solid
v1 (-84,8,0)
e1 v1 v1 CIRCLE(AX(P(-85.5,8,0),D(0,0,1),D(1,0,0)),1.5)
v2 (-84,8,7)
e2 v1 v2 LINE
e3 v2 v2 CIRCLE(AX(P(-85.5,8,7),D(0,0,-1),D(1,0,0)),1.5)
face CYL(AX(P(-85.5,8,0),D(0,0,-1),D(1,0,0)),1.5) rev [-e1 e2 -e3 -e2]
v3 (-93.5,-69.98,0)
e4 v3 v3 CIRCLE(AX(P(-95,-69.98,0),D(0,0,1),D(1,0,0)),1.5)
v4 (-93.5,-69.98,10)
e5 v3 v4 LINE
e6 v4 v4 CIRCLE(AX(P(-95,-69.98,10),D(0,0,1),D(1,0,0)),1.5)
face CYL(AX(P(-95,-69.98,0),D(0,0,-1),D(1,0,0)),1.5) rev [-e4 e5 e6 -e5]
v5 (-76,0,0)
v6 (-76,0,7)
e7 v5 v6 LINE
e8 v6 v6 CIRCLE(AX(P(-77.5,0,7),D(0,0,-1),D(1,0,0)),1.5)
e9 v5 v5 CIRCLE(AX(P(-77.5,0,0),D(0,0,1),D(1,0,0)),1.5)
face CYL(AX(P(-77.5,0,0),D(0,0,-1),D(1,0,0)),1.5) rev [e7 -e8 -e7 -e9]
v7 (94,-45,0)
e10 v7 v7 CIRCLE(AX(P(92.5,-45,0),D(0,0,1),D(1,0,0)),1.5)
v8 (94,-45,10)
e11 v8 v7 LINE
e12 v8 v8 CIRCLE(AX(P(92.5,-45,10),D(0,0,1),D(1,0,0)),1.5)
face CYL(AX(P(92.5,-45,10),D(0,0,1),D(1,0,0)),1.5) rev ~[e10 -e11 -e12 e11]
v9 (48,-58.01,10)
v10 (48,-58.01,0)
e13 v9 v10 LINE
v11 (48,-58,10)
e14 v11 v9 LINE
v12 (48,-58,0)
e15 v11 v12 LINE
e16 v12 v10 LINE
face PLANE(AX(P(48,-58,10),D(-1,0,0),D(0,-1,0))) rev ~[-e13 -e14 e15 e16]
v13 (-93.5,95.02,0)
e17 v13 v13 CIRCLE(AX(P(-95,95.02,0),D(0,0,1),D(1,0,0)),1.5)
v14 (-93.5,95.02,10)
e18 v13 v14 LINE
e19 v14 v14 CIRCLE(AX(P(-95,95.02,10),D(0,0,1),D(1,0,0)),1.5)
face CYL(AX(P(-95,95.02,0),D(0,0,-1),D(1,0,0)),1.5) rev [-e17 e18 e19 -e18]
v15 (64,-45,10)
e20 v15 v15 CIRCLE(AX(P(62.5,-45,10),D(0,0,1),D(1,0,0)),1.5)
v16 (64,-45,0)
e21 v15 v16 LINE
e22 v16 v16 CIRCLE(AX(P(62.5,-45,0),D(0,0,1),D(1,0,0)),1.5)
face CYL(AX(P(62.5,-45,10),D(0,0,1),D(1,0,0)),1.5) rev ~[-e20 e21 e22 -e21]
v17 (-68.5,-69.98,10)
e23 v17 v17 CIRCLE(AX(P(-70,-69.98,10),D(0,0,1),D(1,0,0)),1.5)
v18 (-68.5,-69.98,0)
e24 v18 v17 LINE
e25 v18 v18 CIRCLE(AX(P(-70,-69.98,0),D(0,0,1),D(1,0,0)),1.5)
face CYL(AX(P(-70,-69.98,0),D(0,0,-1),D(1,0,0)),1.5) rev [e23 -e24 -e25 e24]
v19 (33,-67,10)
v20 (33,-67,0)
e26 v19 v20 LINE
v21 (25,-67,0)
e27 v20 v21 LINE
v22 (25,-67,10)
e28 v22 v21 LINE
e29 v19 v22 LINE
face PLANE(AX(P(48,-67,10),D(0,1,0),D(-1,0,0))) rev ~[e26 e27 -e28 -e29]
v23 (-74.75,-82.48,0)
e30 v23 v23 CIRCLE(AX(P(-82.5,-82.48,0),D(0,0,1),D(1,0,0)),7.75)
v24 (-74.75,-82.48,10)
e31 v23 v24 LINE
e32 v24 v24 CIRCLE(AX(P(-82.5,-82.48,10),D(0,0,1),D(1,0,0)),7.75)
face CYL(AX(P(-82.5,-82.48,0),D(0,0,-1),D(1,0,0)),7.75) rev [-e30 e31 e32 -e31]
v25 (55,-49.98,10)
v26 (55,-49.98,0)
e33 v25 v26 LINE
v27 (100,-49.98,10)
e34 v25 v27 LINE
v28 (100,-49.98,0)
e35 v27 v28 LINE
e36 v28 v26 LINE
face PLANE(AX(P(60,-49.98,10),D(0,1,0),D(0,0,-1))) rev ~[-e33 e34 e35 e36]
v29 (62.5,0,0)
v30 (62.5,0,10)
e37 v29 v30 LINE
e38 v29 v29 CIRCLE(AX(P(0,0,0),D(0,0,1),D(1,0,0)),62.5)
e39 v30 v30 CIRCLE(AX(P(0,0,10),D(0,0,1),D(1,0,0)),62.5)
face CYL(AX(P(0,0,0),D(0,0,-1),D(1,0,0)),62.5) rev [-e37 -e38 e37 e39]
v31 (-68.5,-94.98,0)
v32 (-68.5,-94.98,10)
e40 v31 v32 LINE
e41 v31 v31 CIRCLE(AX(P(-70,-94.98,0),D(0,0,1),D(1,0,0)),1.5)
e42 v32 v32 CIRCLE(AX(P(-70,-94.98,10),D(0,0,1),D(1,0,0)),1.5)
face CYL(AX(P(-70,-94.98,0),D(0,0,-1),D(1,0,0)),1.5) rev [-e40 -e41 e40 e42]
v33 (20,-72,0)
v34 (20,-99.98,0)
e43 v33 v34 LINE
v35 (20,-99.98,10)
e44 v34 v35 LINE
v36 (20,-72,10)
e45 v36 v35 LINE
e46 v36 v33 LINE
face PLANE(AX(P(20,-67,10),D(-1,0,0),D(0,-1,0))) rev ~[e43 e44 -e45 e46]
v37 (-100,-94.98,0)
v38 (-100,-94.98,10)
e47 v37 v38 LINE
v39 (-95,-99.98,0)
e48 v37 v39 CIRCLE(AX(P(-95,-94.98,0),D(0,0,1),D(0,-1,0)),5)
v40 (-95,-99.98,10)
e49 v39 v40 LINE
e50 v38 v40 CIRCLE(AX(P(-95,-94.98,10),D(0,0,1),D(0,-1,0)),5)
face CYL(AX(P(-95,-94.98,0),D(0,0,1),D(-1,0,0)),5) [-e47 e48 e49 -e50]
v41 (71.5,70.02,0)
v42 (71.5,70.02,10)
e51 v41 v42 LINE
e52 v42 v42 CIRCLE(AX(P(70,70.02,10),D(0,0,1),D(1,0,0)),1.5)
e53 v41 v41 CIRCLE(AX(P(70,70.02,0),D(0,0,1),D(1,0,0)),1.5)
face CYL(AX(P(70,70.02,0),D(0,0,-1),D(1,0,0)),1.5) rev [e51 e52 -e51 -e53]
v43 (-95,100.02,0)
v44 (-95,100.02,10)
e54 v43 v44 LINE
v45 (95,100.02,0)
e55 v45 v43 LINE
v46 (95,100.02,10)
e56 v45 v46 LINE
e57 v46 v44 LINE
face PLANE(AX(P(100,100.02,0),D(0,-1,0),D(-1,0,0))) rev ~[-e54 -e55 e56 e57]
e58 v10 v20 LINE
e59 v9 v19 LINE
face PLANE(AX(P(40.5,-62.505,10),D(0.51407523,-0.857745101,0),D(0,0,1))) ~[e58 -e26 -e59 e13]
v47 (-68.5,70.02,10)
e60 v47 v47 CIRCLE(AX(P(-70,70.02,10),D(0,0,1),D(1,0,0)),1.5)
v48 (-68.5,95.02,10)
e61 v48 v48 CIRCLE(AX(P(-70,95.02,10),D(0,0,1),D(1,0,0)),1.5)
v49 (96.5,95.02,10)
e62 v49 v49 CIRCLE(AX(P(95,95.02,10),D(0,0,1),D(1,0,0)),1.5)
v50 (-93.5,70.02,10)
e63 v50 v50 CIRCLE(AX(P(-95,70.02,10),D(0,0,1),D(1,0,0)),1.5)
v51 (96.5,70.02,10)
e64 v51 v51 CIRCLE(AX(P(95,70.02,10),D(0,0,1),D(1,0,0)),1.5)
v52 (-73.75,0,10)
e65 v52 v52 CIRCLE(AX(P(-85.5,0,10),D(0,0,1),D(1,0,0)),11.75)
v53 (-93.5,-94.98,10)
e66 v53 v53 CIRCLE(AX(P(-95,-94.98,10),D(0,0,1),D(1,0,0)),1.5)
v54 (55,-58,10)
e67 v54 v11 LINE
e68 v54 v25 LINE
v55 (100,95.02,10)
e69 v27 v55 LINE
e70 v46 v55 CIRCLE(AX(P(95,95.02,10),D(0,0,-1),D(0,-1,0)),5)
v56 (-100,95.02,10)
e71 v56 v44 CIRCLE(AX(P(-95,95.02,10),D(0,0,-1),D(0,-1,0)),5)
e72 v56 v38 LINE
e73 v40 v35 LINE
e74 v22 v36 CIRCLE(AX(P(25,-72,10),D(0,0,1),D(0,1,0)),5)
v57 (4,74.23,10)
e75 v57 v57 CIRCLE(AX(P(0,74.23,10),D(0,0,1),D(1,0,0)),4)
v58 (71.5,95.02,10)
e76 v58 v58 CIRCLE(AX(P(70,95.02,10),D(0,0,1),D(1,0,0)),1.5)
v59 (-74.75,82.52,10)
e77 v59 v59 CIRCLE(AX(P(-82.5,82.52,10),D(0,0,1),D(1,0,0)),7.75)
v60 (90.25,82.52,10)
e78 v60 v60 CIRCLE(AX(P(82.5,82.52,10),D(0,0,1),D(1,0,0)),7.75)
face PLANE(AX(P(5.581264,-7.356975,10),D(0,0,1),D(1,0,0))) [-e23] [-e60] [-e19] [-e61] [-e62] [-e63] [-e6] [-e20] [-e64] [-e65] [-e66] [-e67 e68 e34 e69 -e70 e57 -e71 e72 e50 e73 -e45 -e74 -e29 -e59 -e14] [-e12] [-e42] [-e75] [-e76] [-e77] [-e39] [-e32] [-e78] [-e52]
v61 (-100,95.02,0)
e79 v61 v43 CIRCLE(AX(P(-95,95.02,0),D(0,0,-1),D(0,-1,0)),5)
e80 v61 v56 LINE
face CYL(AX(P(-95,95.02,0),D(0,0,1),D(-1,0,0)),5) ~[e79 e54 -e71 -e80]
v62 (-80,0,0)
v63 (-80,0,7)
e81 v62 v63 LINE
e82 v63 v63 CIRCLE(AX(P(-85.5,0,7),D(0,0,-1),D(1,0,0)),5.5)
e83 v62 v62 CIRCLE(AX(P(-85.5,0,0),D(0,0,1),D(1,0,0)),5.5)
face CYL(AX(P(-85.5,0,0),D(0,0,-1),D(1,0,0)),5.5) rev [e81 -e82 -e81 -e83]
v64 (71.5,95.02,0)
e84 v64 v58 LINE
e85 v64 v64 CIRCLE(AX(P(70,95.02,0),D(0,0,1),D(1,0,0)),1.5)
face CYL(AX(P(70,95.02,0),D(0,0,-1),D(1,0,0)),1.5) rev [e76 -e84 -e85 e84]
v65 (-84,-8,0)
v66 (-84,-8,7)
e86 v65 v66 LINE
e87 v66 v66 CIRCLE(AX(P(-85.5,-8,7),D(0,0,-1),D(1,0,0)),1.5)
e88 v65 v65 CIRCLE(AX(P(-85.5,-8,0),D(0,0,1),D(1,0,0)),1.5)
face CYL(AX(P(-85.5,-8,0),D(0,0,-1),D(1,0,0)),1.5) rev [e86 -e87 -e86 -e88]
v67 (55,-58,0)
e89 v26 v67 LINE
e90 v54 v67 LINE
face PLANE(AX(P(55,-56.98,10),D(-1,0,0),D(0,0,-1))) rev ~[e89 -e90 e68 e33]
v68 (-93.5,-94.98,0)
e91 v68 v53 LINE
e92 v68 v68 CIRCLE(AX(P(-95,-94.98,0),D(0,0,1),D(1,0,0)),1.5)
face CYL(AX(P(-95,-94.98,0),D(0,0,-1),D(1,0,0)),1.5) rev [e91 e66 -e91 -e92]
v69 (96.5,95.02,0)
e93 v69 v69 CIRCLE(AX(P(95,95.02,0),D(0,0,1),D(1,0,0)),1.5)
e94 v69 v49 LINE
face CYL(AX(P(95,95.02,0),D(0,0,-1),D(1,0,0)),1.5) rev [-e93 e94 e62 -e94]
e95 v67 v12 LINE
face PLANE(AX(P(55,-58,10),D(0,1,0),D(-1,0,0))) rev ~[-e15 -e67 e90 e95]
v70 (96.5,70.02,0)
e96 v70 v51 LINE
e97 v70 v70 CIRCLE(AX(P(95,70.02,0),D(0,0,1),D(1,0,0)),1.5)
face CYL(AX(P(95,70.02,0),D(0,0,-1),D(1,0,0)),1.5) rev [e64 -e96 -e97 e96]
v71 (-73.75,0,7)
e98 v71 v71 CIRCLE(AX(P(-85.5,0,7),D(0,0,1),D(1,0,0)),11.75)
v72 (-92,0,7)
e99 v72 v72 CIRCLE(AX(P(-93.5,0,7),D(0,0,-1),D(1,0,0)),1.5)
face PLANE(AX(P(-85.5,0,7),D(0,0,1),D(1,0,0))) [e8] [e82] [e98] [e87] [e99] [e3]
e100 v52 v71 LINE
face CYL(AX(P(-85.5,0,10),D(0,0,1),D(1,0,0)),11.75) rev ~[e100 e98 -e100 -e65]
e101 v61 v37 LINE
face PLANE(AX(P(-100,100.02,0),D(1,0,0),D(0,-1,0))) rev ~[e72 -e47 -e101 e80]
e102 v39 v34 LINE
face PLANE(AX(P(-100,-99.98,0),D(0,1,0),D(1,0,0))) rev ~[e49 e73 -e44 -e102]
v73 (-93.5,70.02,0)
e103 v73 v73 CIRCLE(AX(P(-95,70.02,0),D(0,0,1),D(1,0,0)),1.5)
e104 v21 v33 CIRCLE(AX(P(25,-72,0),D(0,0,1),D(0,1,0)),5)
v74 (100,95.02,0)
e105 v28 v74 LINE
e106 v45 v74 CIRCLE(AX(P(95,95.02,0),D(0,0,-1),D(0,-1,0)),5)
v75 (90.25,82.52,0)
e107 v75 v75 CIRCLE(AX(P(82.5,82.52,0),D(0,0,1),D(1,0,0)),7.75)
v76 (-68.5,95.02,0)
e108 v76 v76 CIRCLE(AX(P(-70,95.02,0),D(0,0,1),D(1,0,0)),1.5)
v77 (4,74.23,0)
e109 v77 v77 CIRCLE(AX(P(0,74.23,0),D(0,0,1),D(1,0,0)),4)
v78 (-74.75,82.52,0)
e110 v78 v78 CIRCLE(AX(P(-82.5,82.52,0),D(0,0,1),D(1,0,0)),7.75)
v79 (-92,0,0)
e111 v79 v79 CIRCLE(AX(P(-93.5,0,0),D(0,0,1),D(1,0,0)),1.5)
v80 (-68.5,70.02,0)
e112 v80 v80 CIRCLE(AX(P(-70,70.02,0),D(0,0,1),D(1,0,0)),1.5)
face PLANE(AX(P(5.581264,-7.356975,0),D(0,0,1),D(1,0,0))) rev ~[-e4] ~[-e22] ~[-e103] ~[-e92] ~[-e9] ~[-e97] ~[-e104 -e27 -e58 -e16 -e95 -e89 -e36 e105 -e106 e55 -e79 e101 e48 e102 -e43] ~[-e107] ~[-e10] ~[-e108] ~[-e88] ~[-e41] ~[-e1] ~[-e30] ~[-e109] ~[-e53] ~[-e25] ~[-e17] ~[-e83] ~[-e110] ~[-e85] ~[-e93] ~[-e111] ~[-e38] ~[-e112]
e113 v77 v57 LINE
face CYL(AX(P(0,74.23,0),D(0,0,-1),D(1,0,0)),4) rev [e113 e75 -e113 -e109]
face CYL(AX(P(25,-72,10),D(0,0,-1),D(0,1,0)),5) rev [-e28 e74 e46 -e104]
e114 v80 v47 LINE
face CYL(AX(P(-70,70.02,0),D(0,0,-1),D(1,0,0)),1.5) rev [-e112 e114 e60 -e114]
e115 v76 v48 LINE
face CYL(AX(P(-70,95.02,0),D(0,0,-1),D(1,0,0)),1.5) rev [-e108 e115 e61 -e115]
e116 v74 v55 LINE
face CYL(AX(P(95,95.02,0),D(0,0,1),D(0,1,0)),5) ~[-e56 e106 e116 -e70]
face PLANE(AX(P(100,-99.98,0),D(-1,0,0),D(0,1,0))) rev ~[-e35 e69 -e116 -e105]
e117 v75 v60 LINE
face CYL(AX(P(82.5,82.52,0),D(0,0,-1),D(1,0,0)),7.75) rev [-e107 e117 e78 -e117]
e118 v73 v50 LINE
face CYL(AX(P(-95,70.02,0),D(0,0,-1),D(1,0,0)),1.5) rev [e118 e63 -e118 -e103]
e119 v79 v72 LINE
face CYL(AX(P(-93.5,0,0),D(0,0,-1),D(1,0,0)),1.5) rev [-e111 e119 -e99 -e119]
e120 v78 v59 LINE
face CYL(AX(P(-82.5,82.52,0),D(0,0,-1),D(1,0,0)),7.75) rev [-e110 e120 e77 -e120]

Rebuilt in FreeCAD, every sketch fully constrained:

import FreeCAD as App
import Part
import Sketcher
from FreeCAD import Vector
Q = App.Units.Quantity


def edges_at(feature, points):
    """Names of the edges that pass closest to the given points."""
    edges = feature.Shape.Edges
    near = lambda p: min(range(len(edges)), key=lambda i: edges[i].distToShape(Part.Vertex(*p))[0])
    return sorted({f"Edge{near(p) + 1}" for p in points})


def add_polygon(sketch, points):
    """Adds a closed chain of lines whose ends are joined by coincident constraints."""
    first, n = sketch.GeometryCount, len(points)
    for a, b in zip(points, points[1:] + points[:1]):
        sketch.addGeometry(Part.LineSegment(App.Vector(*a, 0), App.Vector(*b, 0)), False)
    for i in range(n):
        sketch.addConstraint(Sketcher.Constraint("Coincident", first + i, 2, first + (i + 1) % n, 1))

doc = App.newDocument("Part")
body = doc.addObject("PartDesign::Body", "Body")

# Sketch on XY plane
sketch1 = body.newObject("Sketcher::SketchObject", "Sketch")
sketch1.AttachmentSupport = (doc.getObject("XY_Plane"), [""])
sketch1.MapMode = "FlatFace"
add_polygon(sketch1, [(-100, 100), (-100, -100), (55, -100), (55, -57), (60, -57), (60, -100), (100, -100), (100, 100)])  # lines 0-7
sketch1.addGeometry(Part.Circle(Vector(-95, -95, 0), Vector(0, 0, 1), 1.5), False)  # 8
sketch1.addGeometry(Part.Circle(Vector(-82.5, -82.5, 0), Vector(0, 0, 1), 7.8), False)  # 9
sketch1.addGeometry(Part.Circle(Vector(-70, -95, 0), Vector(0, 0, 1), 1.5), False)  # 10
sketch1.addGeometry(Part.Circle(Vector(-95, -70, 0), Vector(0, 0, 1), 1.5), False)  # 11
sketch1.addGeometry(Part.Circle(Vector(-70, -70, 0), Vector(0, 0, 1), 1.5), False)  # 12
sketch1.addGeometry(Part.Circle(Vector(-85.5, -8, 0), Vector(0, 0, 1), 1.5), False)  # 13
sketch1.addGeometry(Part.Circle(Vector(-93.5, 0, 0), Vector(0, 0, 1), 1.5), False)  # 14
sketch1.addGeometry(Part.Circle(Vector(-85.5, 0, 0), Vector(0, 0, 1), 5.5), False)  # 15
sketch1.addGeometry(Part.Circle(Vector(-77.5, 0, 0), Vector(0, 0, 1), 1.5), False)  # 16
sketch1.addGeometry(Part.Circle(Vector(68, -95, 0), Vector(0, 0, 1), 1.5), False)  # 17
sketch1.addGeometry(Part.Circle(Vector(93, -95, 0), Vector(0, 0, 1), 1.5), False)  # 18
sketch1.addGeometry(Part.Circle(Vector(0, 0, 0), Vector(0, 0, 1), 62.5), False)  # 19
sketch1.addGeometry(Part.Circle(Vector(-85.5, 8, 0), Vector(0, 0, 1), 1.5), False)  # 20
sketch1.addGeometry(Part.Circle(Vector(-95, 70, 0), Vector(0, 0, 1), 1.5), False)  # 21
sketch1.addGeometry(Part.Circle(Vector(-70, 70, 0), Vector(0, 0, 1), 1.5), False)  # 22
sketch1.addGeometry(Part.Circle(Vector(-82.5, 82.5, 0), Vector(0, 0, 1), 7.8), False)  # 23
sketch1.addGeometry(Part.Circle(Vector(-95, 95, 0), Vector(0, 0, 1), 1.5), False)  # 24
sketch1.addGeometry(Part.Circle(Vector(-70, 95, 0), Vector(0, 0, 1), 1.5), False)  # 25
sketch1.addGeometry(Part.Circle(Vector(0, 74.2, 0), Vector(0, 0, 1), 4), False)  # 26
sketch1.addGeometry(Part.Circle(Vector(70, 70, 0), Vector(0, 0, 1), 1.5), False)  # 27
sketch1.addGeometry(Part.Circle(Vector(95, 70, 0), Vector(0, 0, 1), 1.5), False)  # 28
sketch1.addGeometry(Part.Circle(Vector(70, 95, 0), Vector(0, 0, 1), 1.5), False)  # 29
sketch1.addGeometry(Part.Circle(Vector(82.5, 82.5, 0), Vector(0, 0, 1), 7.8), False)  # 30
sketch1.addGeometry(Part.Circle(Vector(95, 95, 0), Vector(0, 0, 1), 1.5), False)  # 31
sketch1.addConstraint([
    Sketcher.Constraint("Vertical", 0),
    Sketcher.Constraint("Horizontal", 1),
    Sketcher.Constraint("Vertical", 2),
    Sketcher.Constraint("Horizontal", 3),
    Sketcher.Constraint("Vertical", 4),
    Sketcher.Constraint("Horizontal", 5),
    Sketcher.Constraint("Vertical", 6),
    Sketcher.Constraint("Horizontal", 7),
    Sketcher.Constraint("Coincident", 19, 3, -1, 1),
    Sketcher.Constraint("Equal", 8, 10),
    Sketcher.Constraint("Equal", 10, 11),
    Sketcher.Constraint("Equal", 11, 12),
    Sketcher.Constraint("Equal", 12, 13),
    Sketcher.Constraint("Equal", 13, 14),
    Sketcher.Constraint("Equal", 14, 16),
    Sketcher.Constraint("Equal", 16, 17),
    Sketcher.Constraint("Equal", 17, 18),
    Sketcher.Constraint("Equal", 18, 20),
    Sketcher.Constraint("Equal", 20, 21),
    Sketcher.Constraint("Equal", 21, 22),
    Sketcher.Constraint("Equal", 9, 23),
    Sketcher.Constraint("Equal", 22, 24),
    Sketcher.Constraint("Equal", 24, 25),
    Sketcher.Constraint("Equal", 25, 27),
    Sketcher.Constraint("Equal", 27, 28),
    Sketcher.Constraint("Equal", 28, 29),
    Sketcher.Constraint("Equal", 23, 30),
    Sketcher.Constraint("Equal", 29, 31),
    Sketcher.Constraint("Symmetric", 22, 3, 27, 3, -2),
    Sketcher.Constraint("Symmetric", 21, 3, 28, 3, -2),
    Sketcher.Constraint("Symmetric", 25, 3, 29, 3, -2),
    Sketcher.Constraint("Symmetric", 23, 3, 30, 3, -2),
    Sketcher.Constraint("Symmetric", 24, 3, 31, 3, -2),
    Sketcher.Constraint("Symmetric", 0, 2, 5, 2, -2),
    Sketcher.Constraint("Symmetric", 13, 3, 20, 3, -1),
    Sketcher.Constraint("PointOnObject", 14, 3, -1),
    Sketcher.Constraint("PointOnObject", 15, 3, -1),
    Sketcher.Constraint("PointOnObject", 16, 3, -1),
    Sketcher.Constraint("PointOnObject", 26, 3, -2),
    Sketcher.Constraint("Horizontal", 8, 3, 10, 3),
    Sketcher.Constraint("Horizontal", 11, 3, 12, 3),
    Sketcher.Constraint("Horizontal", 10, 3, 17, 3),
    Sketcher.Constraint("Horizontal", 17, 3, 18, 3),
    Sketcher.Constraint("Horizontal", 21, 3, 22, 3),
    Sketcher.Constraint("Horizontal", 24, 3, 25, 3),
    Sketcher.Constraint("Vertical", 8, 3, 11, 3),
    Sketcher.Constraint("Vertical", 10, 3, 12, 3),
    Sketcher.Constraint("Vertical", 13, 3, 15, 3),
    Sketcher.Constraint("Vertical", 11, 3, 21, 3),
    Sketcher.Constraint("Vertical", 12, 3, 22, 3),
    Sketcher.Constraint("Vertical", 9, 3, 23, 3),
    Sketcher.Constraint("Vertical", 21, 3, 24, 3),
    Sketcher.Constraint("Vertical", 22, 3, 25, 3),
    Sketcher.Constraint("Equal", 7, 0),
    Sketcher.Constraint("Diameter", 8, Q("3 mm")),
    Sketcher.Constraint("Diameter", 15, Q("11 mm")),
    Sketcher.Constraint("Diameter", 19, Q("125 mm")),
    Sketcher.Constraint("Diameter", 26, Q("8 mm")),
    Sketcher.Constraint("Diameter", 9, Q("15.5 mm")),
    Sketcher.Constraint("DistanceX", 1, 1, 1, 2, Q("155 mm")),
    Sketcher.Constraint("DistanceX", 3, 1, 3, 2, Q("5 mm")),
    Sketcher.Constraint("DistanceX", 5, 1, 5, 2, Q("40 mm")),
    Sketcher.Constraint("DistanceY", 2, 1, 2, 2, Q("43 mm")),
    Sketcher.Constraint("DistanceX", 8, 3, -1, 1, Q("95 mm")),
    Sketcher.Constraint("DistanceX", 10, 3, -1, 1, Q("70 mm")),
    Sketcher.Constraint("DistanceY", 13, 3, -1, 1, Q("8 mm")),
    Sketcher.Constraint("DistanceX", -1, 1, 17, 3, Q("68 mm")),
    Sketcher.Constraint("DistanceX", -1, 1, 18, 3, Q("93 mm")),
    Sketcher.Constraint("DistanceY", 8, 3, 11, 3, Q("25 mm")),
    Sketcher.Constraint("DistanceX", 13, 3, 9, 3, Q("3 mm")),
    Sketcher.Constraint("DistanceX", 14, 3, 13, 3, Q("8 mm")),
    Sketcher.Constraint("DistanceX", 15, 3, 16, 3, Q("8 mm")),
    Sketcher.Constraint("DistanceY", 21, 3, 24, 3, Q("25 mm")),
    Sketcher.Constraint("DistanceY", 18, 3, 28, 3, Q("165 mm")),
    Sketcher.Constraint("DistanceY", 0, 2, 8, 3, Q("5 mm")),
    Sketcher.Constraint("DistanceX", 9, 3, -1, 1, Q("82.5 mm")),
    Sketcher.Constraint("DistanceY", 8, 3, 9, 3, Q("12.5 mm")),
    Sketcher.Constraint("DistanceY", 21, 3, 23, 3, Q("12.5 mm")),
    Sketcher.Constraint("DistanceY", 8, 3, -1, 1, Q("94.98 mm")),
    Sketcher.Constraint("DistanceY", -1, 1, 26, 3, Q("74.23 mm")),
])
pad1 = body.newObject("PartDesign::Pad", "Pad")
pad1.Profile = sketch1
pad1.Length = 10

# Sketch on XY plane
sketch2 = body.newObject("Sketcher::SketchObject", "Sketch001")
sketch2.AttachmentSupport = (doc.getObject("XY_Plane"), [""])
sketch2.MapMode = "FlatFace"
sketch2.AttachmentOffset = App.Placement(Vector(0, 0, 10), App.Rotation())
sketch2.addGeometry(Part.Circle(Vector(-86, 0, 0), Vector(0, 0, 1), 12), False)
sketch2.addConstraint([
    Sketcher.Constraint("PointOnObject", 0, 3, -1),
    Sketcher.Constraint("Diameter", 0, Q("23.5 mm")),
    Sketcher.Constraint("DistanceX", 0, 3, -1, 1, Q("85.5 mm")),
])
pocket1 = body.newObject("PartDesign::Pocket", "Pocket")
pocket1.Profile = sketch2
pocket1.Length = 3
doc.recompute()

fillet = body.newObject("PartDesign::Fillet", "Fillet")
fillet.Base = (pocket1, edges_at(pocket1, [
    (-100, -99.98, 5),
    (-100, 100.02, 5),
    (100, 100.02, 5),
    (100, -99.98, 5),
]))
fillet.Radius = 5

# Sketch on XZ plane
sketch3 = body.newObject("Sketcher::SketchObject", "Sketch002")
sketch3.AttachmentSupport = (doc.getObject("XZ_Plane"), [""])
sketch3.MapMode = "FlatFace"
sketch3.AttachmentOffset = App.Placement(Vector(0, 0, 56.98), App.Rotation())
add_polygon(sketch3, [(60, 0), (60, 10), (55, 10), (55, 0)])  # lines 0-3
sketch3.addConstraint([
    Sketcher.Constraint("Vertical", 0),
    Sketcher.Constraint("Horizontal", 1),
    Sketcher.Constraint("Vertical", 2),
    Sketcher.Constraint("Horizontal", 3),
    Sketcher.Constraint("PointOnObject", 2, 2, -1),
    Sketcher.Constraint("DistanceX", 1, 2, 1, 1, Q("5 mm")),
    Sketcher.Constraint("DistanceY", 0, 1, 0, 2, Q("10 mm")),
    Sketcher.Constraint("DistanceX", -1, 1, 0, 2, Q("60 mm")),
])
pocket2 = body.newObject("PartDesign::Pocket", "Pocket001")
pocket2.Profile = sketch3
pocket2.Length = 7

# Sketch on YZ plane
sketch4 = body.newObject("Sketcher::SketchObject", "Sketch003")
sketch4.AttachmentSupport = (doc.getObject("YZ_Plane"), [""])
sketch4.MapMode = "FlatFace"
sketch4.AttachmentOffset = App.Placement(Vector(0, 0, 60), App.Rotation())
add_polygon(sketch4, [(-100, 0), (-100, 10), (-50, 10), (-50, 0)])  # lines 0-3
sketch4.addConstraint([
    Sketcher.Constraint("Vertical", 0),
    Sketcher.Constraint("Horizontal", 1),
    Sketcher.Constraint("Vertical", 2),
    Sketcher.Constraint("Horizontal", 3),
    Sketcher.Constraint("PointOnObject", 2, 2, -1),
    Sketcher.Constraint("DistanceX", 1, 1, 1, 2, Q("50 mm")),
    Sketcher.Constraint("DistanceY", 0, 1, 0, 2, Q("10 mm")),
    Sketcher.Constraint("DistanceX", 0, 2, -1, 1, Q("99.98 mm")),
])
pocket3 = body.newObject("PartDesign::Pocket", "Pocket002")
pocket3.Profile = sketch4
pocket3.Type = "ThroughAll"
pocket3.Reversed = True

# Sketch on XY plane
sketch5 = body.newObject("Sketcher::SketchObject", "Sketch004")
sketch5.AttachmentSupport = (doc.getObject("XY_Plane"), [""])
sketch5.MapMode = "FlatFace"
sketch5.AttachmentOffset = App.Placement(Vector(0, 0, 10), App.Rotation())
sketch5.addGeometry([
    Part.Circle(Vector(62.5, -45, 0), Vector(0, 0, 1), 1.5),
    Part.Circle(Vector(92.5, -45, 0), Vector(0, 0, 1), 1.5),
], False)
sketch5.addConstraint([
    Sketcher.Constraint("Equal", 0, 1),
    Sketcher.Constraint("Horizontal", 0, 3, 1, 3),
    Sketcher.Constraint("Diameter", 0, Q("3 mm")),
    Sketcher.Constraint("DistanceY", 0, 3, -1, 1, Q("45 mm")),
    Sketcher.Constraint("DistanceX", 0, 3, 1, 3, Q("30 mm")),
    Sketcher.Constraint("DistanceX", -1, 1, 0, 3, Q("62.5 mm")),
])
pocket4 = body.newObject("PartDesign::Pocket", "Pocket003")
pocket4.Profile = sketch5
pocket4.Type = "ThroughAll"

# Sketch on XY plane
sketch6 = body.newObject("Sketcher::SketchObject", "Sketch005")
sketch6.AttachmentSupport = (doc.getObject("XY_Plane"), [""])
sketch6.MapMode = "FlatFace"
sketch6.AttachmentOffset = App.Placement(Vector(0, 0, 10), App.Rotation())
add_polygon(sketch6, [(55, -58), (48, -58), (48, -67), (20, -67), (20, -100), (55, -100)])  # lines 0-5
sketch6.addConstraint([
    Sketcher.Constraint("Horizontal", 0),
    Sketcher.Constraint("Vertical", 1),
    Sketcher.Constraint("Horizontal", 2),
    Sketcher.Constraint("Vertical", 3),
    Sketcher.Constraint("Horizontal", 4),
    Sketcher.Constraint("Vertical", 5),
    Sketcher.Constraint("DistanceX", 0, 2, 0, 1, Q("7 mm")),
    Sketcher.Constraint("DistanceX", 2, 2, 2, 1, Q("28 mm")),
    Sketcher.Constraint("DistanceY", 1, 2, 1, 1, Q("9 mm")),
    Sketcher.Constraint("DistanceY", 3, 2, 3, 1, Q("33 mm")),
    Sketcher.Constraint("DistanceX", -1, 1, 0, 2, Q("48 mm")),
    Sketcher.Constraint("DistanceY", 0, 2, -1, 1, Q("58 mm")),
])
pocket5 = body.newObject("PartDesign::Pocket", "Pocket004")
pocket5.Profile = sketch6
pocket5.Type = "ThroughAll"
doc.recompute()

chamfer = body.newObject("PartDesign::Chamfer", "Chamfer")
chamfer.Base = (pocket5, edges_at(pocket5, [(48, -67, 5)]))
chamfer.ChamferType = "Two distances"
chamfer.Size = 8.99
chamfer.Size2 = 15
doc.recompute()

fillet2 = body.newObject("PartDesign::Fillet", "Fillet001")
fillet2.Base = (chamfer, edges_at(chamfer, [(20, -67, 5)]))
fillet2.Radius = 5

doc.recompute()
